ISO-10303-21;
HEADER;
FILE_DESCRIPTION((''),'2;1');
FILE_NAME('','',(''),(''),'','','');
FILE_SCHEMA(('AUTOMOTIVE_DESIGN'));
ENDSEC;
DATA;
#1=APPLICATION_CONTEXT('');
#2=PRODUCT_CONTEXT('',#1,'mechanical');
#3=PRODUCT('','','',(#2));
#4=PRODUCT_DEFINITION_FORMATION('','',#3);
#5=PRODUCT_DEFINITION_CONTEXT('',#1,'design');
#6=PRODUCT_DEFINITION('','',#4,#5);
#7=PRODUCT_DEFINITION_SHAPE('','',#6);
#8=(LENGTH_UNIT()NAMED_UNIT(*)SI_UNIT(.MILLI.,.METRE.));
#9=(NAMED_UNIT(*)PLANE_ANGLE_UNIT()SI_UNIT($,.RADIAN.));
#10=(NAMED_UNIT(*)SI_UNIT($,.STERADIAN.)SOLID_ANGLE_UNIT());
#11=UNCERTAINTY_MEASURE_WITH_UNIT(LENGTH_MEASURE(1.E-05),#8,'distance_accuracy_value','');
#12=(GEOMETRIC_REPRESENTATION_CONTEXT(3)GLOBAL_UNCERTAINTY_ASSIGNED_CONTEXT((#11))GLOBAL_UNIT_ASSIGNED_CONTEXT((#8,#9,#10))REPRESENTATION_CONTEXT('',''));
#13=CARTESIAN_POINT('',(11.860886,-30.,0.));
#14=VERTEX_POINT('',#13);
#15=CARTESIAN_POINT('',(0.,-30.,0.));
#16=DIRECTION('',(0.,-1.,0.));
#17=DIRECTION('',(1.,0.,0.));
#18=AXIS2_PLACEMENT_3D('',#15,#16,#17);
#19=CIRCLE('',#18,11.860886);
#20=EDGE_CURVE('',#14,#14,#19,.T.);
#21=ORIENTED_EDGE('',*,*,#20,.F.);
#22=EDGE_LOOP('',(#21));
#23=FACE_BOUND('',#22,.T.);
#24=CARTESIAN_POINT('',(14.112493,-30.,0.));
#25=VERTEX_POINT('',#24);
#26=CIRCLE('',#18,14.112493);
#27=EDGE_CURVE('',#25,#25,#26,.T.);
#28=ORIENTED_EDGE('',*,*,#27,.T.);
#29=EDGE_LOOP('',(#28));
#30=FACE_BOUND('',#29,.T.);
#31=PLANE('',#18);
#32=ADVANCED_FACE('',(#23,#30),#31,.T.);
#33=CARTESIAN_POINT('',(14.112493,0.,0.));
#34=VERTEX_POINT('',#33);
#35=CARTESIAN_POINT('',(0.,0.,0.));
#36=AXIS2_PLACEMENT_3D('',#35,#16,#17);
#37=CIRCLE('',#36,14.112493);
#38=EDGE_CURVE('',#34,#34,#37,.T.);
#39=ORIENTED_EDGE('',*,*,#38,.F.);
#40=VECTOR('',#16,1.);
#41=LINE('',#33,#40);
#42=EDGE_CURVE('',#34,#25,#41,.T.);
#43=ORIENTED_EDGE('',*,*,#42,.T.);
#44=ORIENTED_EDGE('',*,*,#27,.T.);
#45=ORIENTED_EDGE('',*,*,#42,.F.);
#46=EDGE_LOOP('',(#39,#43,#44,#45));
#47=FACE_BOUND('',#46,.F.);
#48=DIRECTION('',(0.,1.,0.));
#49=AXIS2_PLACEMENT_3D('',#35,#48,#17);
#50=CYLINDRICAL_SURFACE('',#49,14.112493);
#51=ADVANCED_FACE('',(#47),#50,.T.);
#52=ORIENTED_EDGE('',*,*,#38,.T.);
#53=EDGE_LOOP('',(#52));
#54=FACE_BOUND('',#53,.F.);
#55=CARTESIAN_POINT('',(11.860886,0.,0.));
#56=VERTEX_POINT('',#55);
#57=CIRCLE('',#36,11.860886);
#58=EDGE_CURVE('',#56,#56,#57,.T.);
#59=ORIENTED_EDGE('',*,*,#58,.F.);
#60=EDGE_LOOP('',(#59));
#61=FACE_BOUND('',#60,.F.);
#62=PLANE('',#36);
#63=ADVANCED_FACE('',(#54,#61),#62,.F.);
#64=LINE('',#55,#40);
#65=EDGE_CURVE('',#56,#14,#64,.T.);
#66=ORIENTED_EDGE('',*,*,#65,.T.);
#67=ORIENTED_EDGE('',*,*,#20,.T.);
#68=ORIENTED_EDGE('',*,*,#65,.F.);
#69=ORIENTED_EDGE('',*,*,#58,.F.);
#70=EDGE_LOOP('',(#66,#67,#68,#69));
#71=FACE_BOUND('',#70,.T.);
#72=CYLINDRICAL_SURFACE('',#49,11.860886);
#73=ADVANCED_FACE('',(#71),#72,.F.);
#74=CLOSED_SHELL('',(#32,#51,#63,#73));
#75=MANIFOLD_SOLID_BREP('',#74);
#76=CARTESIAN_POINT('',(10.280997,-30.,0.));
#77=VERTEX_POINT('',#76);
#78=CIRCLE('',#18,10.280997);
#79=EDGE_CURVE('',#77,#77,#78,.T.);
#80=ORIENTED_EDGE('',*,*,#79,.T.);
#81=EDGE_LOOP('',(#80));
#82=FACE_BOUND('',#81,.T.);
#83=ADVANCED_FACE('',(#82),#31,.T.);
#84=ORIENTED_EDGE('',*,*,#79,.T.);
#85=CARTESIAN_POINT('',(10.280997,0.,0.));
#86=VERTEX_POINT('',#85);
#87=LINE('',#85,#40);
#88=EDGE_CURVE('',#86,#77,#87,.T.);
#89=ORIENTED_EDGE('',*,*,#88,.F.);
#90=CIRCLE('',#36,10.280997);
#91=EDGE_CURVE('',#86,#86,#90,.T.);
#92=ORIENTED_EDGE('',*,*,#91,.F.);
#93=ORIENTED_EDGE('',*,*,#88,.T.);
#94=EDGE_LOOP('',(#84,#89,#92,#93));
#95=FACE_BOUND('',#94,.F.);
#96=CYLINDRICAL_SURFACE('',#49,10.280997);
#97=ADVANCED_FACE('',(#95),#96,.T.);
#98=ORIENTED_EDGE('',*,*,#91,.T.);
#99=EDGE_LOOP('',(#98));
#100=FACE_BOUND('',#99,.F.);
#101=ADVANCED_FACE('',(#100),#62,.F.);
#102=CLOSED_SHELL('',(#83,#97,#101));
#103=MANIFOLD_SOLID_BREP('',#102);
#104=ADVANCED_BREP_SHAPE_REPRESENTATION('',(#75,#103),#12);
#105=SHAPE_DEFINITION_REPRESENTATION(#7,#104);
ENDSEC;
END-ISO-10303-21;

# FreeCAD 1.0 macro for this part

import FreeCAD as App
import Part
import Sketcher
Q = App.Units.Quantity

doc = App.newDocument("Part")
body = doc.addObject("PartDesign::Body", "Body")

# Sketch on XZ plane
sketch1 = body.newObject("Sketcher::SketchObject", "Sketch")
sketch1.AttachmentSupport = (doc.getObject("XZ_Plane"), [""])
sketch1.MapMode = "FlatFace"
sketch1.addGeometry(Part.Circle(App.Vector(0, 0, 0), App.Vector(0, 0, 1), 10), False)
sketch1.addConstraint([
    Sketcher.Constraint("Coincident", 0, 3, -1, 1),
    Sketcher.Constraint("Diameter", 0, Q("20.561994 mm")),
])
pad1 = body.newObject("PartDesign::Pad", "Pad")
pad1.Profile = sketch1
pad1.Length = 30
body2 = doc.addObject("PartDesign::Body", "Body001")

# Sketch on XZ plane
sketch2 = body2.newObject("Sketcher::SketchObject", "Sketch001")
sketch2.AttachmentSupport = (doc.getObject("XZ_Plane001"), [""])
sketch2.MapMode = "FlatFace"
sketch2.addGeometry([
    Part.Circle(App.Vector(0, 0, 0), App.Vector(0, 0, 1), 14),
    Part.Circle(App.Vector(0, 0, 0), App.Vector(0, 0, 1), 12),
], False)
sketch2.addConstraint([
    Sketcher.Constraint("Coincident", 0, 3, -1, 1),
    Sketcher.Constraint("Coincident", 1, 3, -1, 1),
    Sketcher.Constraint("Diameter", 0, Q("28.224986 mm")),
    Sketcher.Constraint("Diameter", 1, Q("23.721772 mm")),
])
pad2 = body2.newObject("PartDesign::Pad", "Pad001")
pad2.Profile = sketch2
pad2.Length = 30

doc.recompute()
